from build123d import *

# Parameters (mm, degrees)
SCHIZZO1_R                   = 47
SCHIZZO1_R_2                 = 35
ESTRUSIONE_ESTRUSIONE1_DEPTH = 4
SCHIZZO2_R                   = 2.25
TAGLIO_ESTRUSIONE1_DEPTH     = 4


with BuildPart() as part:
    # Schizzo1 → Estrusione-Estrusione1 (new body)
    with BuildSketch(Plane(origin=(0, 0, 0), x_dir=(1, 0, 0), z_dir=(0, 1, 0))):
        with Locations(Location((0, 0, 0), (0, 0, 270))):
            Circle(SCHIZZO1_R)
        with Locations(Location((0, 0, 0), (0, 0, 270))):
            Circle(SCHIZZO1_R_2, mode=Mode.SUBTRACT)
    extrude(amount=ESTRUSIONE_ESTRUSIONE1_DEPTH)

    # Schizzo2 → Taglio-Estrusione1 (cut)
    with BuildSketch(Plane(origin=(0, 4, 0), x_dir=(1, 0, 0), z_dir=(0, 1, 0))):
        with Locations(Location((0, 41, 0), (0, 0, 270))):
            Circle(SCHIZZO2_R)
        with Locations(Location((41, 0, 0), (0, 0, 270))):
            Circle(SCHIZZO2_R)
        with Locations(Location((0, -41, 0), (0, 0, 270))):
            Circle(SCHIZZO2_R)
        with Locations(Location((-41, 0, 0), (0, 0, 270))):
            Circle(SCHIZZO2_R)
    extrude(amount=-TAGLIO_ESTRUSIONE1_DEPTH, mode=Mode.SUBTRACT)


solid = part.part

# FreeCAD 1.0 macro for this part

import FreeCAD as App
import Part
import Sketcher
from FreeCAD import Vector
Q = App.Units.Quantity

doc = App.newDocument("Part")
body = doc.addObject("PartDesign::Body", "Body")

sketch1 = doc.addObject("Sketcher::SketchObject", "Sketch")
body.addObject(sketch1)
sketch1.AttachmentSupport = (doc.XZ_Plane, [""])
sketch1.MapMode = "FlatFace"
sketch1.addGeometry(Part.Circle(Vector(0, 0, 0), Vector(0, 0, 1), 47), False)
sketch1.addGeometry(Part.Circle(Vector(0, 0, 0), Vector(0, 0, 1), 35), False)
sketch1.addConstraint(Sketcher.Constraint("Coincident", 0, 3, -1, 1))
sketch1.addConstraint(Sketcher.Constraint("Coincident", 1, 3, -1, 1))
sketch1.addConstraint(Sketcher.Constraint("Diameter", 0, Q("94 mm")))
sketch1.addConstraint(Sketcher.Constraint("Diameter", 1, Q("70 mm")))
pad1 = doc.addObject("PartDesign::Pad", "Pad")
body.addObject(pad1)
pad1.Profile = sketch1
pad1.Length = 4
pad1.Reversed = True

sketch2 = doc.addObject("Sketcher::SketchObject", "Sketch001")
body.addObject(sketch2)
sketch2.AttachmentSupport = (doc.XZ_Plane, [""])
sketch2.MapMode = "FlatFace"
sketch2.AttachmentOffset = App.Placement(Vector(0, 0, -4), App.Rotation())
sketch2.addGeometry(Part.Circle(Vector(0, -41, 0), Vector(0, 0, 1), 2.2), False)
sketch2.addGeometry(Part.Circle(Vector(41, 0, 0), Vector(0, 0, 1), 2.2), False)
sketch2.addGeometry(Part.Circle(Vector(0, 41, 0), Vector(0, 0, 1), 2.2), False)
sketch2.addGeometry(Part.Circle(Vector(-41, 0, 0), Vector(0, 0, 1), 2.2), False)
sketch2.addConstraint(Sketcher.Constraint("Equal", 0, 1))
sketch2.addConstraint(Sketcher.Constraint("Equal", 1, 2))
sketch2.addConstraint(Sketcher.Constraint("Equal", 2, 3))
sketch2.addConstraint(Sketcher.Constraint("Symmetric", 0, 3, 2, 3, -1, 1))
sketch2.addConstraint(Sketcher.Constraint("Symmetric", 1, 3, 3, 3, -1, 1))
sketch2.addConstraint(Sketcher.Constraint("PointOnObject", 0, 3, -2))
sketch2.addConstraint(Sketcher.Constraint("PointOnObject", 1, 3, -1))
sketch2.addConstraint(Sketcher.Constraint("Diameter", 0, Q("4.5 mm")))
sketch2.addConstraint(Sketcher.Constraint("DistanceY", 0, 3, -1, 1, Q("41 mm")))
sketch2.addConstraint(Sketcher.Constraint("DistanceX", -1, 1, 1, 3, Q("41 mm")))
pocket1 = doc.addObject("PartDesign::Pocket", "Pocket")
body.addObject(pocket1)
pocket1.Profile = sketch2
pocket1.Length = 4
pocket1.Reversed = True

doc.recompute()
